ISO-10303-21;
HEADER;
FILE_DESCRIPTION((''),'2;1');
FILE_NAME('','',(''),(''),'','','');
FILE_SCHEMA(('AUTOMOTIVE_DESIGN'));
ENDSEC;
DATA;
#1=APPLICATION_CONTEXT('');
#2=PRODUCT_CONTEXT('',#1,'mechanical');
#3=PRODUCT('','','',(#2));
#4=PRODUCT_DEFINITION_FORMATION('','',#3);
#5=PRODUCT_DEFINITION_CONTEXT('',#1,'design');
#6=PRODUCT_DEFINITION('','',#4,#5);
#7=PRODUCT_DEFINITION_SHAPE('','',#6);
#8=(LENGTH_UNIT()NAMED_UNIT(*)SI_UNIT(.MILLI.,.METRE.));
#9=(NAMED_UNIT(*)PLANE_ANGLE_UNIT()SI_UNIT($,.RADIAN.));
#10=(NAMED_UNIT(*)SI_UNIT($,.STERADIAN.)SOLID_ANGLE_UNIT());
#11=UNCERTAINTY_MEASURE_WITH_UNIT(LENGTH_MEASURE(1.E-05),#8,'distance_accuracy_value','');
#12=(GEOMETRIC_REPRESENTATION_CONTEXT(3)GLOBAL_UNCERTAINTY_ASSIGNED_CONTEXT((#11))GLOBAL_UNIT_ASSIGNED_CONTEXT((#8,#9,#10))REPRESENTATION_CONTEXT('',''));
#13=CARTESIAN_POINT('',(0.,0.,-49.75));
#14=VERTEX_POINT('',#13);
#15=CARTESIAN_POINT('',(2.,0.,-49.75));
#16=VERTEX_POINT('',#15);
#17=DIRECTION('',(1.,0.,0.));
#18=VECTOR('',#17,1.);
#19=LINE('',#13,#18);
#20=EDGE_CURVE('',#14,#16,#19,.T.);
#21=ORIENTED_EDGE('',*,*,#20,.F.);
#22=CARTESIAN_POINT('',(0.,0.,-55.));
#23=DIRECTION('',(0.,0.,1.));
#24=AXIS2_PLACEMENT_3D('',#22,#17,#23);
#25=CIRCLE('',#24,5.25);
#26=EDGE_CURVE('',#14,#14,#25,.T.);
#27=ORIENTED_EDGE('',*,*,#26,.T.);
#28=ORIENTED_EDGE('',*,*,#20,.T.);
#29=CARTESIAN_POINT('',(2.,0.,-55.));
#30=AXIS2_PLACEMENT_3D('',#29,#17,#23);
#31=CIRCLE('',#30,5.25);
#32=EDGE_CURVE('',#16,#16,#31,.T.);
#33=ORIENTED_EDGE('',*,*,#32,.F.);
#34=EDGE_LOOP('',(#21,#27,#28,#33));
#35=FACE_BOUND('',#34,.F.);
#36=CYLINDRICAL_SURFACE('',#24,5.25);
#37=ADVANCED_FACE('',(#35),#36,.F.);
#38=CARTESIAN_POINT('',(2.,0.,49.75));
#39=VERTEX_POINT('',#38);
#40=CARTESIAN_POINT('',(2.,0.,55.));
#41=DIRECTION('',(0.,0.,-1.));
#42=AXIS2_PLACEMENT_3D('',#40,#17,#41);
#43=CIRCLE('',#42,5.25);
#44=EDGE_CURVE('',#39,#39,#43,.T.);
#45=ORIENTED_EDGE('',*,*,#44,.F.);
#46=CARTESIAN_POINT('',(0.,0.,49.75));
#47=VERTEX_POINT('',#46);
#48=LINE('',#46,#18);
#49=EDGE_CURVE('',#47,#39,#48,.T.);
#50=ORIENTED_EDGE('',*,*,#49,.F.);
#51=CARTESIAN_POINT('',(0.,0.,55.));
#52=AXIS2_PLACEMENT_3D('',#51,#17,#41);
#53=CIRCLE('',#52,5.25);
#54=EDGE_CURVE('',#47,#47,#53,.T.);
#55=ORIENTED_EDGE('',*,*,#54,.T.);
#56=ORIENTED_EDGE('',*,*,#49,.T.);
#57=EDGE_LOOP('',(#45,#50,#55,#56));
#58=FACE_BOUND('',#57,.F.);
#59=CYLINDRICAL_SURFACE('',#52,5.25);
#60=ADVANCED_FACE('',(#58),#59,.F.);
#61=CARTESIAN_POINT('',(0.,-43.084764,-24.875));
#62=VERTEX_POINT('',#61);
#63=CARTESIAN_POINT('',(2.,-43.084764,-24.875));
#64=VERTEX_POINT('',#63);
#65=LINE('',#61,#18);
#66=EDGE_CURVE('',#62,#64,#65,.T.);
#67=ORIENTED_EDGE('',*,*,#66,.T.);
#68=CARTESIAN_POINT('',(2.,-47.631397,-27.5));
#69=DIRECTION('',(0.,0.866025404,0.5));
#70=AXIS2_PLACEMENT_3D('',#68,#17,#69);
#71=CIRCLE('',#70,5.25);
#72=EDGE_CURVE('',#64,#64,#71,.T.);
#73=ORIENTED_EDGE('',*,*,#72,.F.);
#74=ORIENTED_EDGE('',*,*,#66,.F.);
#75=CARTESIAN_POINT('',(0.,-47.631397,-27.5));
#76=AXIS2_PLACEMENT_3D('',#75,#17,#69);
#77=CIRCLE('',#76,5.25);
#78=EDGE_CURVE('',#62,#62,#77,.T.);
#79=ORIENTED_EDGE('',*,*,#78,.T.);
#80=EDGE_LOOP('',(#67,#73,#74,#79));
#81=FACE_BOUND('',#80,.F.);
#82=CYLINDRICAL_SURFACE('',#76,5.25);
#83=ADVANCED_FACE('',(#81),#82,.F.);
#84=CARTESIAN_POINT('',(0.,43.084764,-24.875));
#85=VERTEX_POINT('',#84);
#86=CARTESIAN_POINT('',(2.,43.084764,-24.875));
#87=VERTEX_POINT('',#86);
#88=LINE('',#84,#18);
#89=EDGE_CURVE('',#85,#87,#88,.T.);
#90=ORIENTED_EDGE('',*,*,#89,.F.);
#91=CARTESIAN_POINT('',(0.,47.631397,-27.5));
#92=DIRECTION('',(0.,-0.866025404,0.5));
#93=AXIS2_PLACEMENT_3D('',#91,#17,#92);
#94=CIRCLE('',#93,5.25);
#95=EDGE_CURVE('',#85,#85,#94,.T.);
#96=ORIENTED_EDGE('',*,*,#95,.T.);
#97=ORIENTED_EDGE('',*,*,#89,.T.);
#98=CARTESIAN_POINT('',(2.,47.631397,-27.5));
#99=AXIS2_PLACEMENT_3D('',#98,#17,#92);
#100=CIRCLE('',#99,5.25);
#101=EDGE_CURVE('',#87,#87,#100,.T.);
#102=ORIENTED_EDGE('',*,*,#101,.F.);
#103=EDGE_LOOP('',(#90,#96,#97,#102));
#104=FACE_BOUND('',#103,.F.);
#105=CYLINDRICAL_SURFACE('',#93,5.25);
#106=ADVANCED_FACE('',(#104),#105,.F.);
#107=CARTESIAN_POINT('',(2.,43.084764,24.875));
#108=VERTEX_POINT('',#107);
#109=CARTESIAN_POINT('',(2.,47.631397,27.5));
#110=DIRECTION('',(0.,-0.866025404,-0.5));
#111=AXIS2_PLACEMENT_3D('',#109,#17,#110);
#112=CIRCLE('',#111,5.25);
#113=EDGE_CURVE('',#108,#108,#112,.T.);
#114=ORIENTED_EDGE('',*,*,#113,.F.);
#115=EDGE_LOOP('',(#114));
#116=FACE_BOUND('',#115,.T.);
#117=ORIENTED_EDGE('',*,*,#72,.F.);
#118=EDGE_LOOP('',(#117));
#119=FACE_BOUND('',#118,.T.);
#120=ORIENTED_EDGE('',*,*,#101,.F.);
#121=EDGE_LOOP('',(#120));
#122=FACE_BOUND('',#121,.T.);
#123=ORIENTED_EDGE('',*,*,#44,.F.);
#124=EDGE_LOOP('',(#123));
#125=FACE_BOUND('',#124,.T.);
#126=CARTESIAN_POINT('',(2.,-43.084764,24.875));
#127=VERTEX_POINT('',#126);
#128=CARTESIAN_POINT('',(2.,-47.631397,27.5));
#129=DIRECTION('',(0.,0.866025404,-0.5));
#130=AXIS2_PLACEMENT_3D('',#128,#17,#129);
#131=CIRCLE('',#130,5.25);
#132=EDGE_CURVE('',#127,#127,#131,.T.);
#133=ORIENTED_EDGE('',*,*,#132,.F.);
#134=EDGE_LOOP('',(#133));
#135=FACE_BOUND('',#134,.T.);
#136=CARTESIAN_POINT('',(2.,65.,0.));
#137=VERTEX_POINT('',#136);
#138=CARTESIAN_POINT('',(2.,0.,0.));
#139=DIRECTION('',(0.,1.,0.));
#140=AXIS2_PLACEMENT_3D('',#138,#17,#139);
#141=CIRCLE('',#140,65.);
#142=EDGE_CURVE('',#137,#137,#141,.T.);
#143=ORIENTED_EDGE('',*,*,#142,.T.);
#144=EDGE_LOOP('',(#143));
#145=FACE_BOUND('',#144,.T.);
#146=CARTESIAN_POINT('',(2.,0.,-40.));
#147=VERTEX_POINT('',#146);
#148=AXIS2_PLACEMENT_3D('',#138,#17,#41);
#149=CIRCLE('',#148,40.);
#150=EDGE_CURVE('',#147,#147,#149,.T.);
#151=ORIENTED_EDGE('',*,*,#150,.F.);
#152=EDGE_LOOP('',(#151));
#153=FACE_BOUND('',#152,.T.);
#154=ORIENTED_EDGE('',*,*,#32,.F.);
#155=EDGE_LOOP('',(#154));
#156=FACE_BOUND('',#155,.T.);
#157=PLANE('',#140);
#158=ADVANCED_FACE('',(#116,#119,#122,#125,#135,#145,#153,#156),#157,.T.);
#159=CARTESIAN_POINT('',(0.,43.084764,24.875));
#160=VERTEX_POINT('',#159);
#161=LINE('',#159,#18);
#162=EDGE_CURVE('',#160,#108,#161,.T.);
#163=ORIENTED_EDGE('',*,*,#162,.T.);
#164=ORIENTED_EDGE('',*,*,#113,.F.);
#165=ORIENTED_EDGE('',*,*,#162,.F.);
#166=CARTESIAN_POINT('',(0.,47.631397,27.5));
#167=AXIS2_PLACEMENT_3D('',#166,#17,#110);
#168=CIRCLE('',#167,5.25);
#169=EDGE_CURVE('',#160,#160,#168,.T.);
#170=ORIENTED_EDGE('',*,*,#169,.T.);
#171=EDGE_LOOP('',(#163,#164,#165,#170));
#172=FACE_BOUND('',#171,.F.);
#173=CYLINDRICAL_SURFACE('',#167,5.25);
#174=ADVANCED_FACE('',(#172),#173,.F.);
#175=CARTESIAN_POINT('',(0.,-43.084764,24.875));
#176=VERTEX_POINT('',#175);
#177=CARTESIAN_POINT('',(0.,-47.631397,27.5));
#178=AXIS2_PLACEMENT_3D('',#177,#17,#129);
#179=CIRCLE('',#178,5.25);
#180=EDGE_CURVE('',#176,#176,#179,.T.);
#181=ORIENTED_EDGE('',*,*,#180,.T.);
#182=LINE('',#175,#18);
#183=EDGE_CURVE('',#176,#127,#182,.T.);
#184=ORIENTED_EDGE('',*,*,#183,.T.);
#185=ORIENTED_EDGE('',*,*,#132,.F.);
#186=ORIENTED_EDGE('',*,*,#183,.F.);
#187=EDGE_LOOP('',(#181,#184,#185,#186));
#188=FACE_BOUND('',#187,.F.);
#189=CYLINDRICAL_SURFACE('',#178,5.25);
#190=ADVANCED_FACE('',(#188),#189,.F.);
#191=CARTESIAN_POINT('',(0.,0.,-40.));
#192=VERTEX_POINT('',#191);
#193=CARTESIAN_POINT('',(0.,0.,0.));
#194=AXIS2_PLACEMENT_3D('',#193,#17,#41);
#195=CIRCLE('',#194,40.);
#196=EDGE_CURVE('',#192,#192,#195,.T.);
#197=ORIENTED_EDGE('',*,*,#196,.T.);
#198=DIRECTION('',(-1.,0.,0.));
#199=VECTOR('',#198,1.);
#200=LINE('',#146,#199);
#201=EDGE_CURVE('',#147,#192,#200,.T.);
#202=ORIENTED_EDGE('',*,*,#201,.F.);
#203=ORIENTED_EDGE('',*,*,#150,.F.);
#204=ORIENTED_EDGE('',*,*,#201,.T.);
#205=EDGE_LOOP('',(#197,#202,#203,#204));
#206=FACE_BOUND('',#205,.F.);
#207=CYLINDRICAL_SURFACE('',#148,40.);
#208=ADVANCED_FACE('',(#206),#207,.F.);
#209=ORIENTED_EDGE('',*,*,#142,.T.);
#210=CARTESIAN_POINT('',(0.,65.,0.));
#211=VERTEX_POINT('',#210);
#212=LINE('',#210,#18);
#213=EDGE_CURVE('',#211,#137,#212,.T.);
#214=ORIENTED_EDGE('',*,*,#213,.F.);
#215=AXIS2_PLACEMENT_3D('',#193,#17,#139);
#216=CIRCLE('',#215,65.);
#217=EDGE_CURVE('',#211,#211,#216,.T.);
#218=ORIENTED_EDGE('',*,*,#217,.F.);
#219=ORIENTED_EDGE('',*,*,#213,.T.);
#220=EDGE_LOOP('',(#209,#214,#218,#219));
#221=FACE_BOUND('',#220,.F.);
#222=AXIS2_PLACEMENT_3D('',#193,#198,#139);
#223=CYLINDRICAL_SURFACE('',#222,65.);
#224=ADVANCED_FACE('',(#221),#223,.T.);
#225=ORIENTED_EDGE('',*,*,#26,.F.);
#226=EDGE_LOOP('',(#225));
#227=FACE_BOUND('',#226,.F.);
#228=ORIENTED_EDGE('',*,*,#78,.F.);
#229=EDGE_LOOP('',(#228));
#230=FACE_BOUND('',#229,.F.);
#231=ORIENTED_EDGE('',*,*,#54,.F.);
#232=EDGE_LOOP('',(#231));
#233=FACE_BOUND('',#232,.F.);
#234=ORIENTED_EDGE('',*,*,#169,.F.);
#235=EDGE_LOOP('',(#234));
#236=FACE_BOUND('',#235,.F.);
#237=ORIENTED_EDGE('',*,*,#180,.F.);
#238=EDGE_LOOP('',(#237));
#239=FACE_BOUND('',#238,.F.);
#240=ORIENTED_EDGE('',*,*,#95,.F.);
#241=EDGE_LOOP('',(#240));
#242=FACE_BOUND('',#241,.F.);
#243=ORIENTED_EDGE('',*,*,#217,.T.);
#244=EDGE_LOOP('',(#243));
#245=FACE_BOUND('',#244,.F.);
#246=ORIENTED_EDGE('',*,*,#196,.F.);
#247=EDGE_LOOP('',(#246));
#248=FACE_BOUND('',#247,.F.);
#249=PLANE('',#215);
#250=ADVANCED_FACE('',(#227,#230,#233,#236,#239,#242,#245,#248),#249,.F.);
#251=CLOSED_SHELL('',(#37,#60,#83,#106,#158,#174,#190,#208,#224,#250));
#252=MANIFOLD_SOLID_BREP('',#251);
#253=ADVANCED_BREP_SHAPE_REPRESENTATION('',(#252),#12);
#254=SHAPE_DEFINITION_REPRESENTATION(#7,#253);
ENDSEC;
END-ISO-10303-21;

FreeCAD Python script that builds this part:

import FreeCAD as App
import Part
import Sketcher
Q = App.Units.Quantity

doc = App.newDocument("Part")
body = doc.addObject("PartDesign::Body", "Body")

# Sketch on YZ plane
sketch1 = body.newObject("Sketcher::SketchObject", "Sketch")
sketch1.AttachmentSupport = (doc.getObject("YZ_Plane"), [""])
sketch1.MapMode = "FlatFace"
sketch1.addGeometry(Part.Circle(App.Vector(0, 0, 0), App.Vector(0, 0, 1), 65), False)
sketch1.addConstraint(Sketcher.Constraint("Coincident", 0, 3, -1, 1))
sketch1.addConstraint(Sketcher.Constraint("Diameter", 0, Q("130 mm")))
pad1 = body.newObject("PartDesign::Pad", "Pad")
pad1.Profile = sketch1
pad1.Length = 2

# Sketch on YZ plane
sketch2 = body.newObject("Sketcher::SketchObject", "Sketch001")
sketch2.AttachmentSupport = (doc.getObject("YZ_Plane"), [""])
sketch2.MapMode = "FlatFace"
sketch2.addGeometry(Part.Circle(App.Vector(0, -55, 0), App.Vector(0, 0, 1), 5.25), False)
sketch2.addConstraint(Sketcher.Constraint("PointOnObject", 0, 3, -2))
sketch2.addConstraint(Sketcher.Constraint("Diameter", 0, Q("10.5 mm")))
sketch2.addConstraint(Sketcher.Constraint("DistanceY", 0, 3, -1, 1, Q("55 mm")))
doc.recompute()
hole = body.newObject("PartDesign::Hole", "Hole")
hole.Profile = sketch2
hole.ThreadType = "None"
hole.Diameter = 10.5
hole.DepthType = "ThroughAll"
hole.Reversed = True
doc.recompute()

polarpattern = body.newObject("PartDesign::PolarPattern", "PolarPattern")
polarpattern.Originals = [hole]
polarpattern.Axis = (doc.getObject("X_Axis"), [""])
polarpattern.Angle = 360
polarpattern.Occurrences = 6
body.Tip = polarpattern

# Sketch on YZ plane
sketch3 = body.newObject("Sketcher::SketchObject", "Sketch002")
sketch3.AttachmentSupport = (doc.getObject("YZ_Plane"), [""])
sketch3.MapMode = "FlatFace"
sketch3.AttachmentOffset = App.Placement(App.Vector(0, 0, 2), App.Rotation())
sketch3.addGeometry(Part.Circle(App.Vector(0, 0, 0), App.Vector(0, 0, 1), 40), False)
sketch3.addConstraint(Sketcher.Constraint("Coincident", 0, 3, -1, 1))
sketch3.addConstraint(Sketcher.Constraint("Diameter", 0, Q("80 mm")))
pocket1 = body.newObject("PartDesign::Pocket", "Pocket")
pocket1.Profile = sketch3
pocket1.Length = 10

doc.recompute()
